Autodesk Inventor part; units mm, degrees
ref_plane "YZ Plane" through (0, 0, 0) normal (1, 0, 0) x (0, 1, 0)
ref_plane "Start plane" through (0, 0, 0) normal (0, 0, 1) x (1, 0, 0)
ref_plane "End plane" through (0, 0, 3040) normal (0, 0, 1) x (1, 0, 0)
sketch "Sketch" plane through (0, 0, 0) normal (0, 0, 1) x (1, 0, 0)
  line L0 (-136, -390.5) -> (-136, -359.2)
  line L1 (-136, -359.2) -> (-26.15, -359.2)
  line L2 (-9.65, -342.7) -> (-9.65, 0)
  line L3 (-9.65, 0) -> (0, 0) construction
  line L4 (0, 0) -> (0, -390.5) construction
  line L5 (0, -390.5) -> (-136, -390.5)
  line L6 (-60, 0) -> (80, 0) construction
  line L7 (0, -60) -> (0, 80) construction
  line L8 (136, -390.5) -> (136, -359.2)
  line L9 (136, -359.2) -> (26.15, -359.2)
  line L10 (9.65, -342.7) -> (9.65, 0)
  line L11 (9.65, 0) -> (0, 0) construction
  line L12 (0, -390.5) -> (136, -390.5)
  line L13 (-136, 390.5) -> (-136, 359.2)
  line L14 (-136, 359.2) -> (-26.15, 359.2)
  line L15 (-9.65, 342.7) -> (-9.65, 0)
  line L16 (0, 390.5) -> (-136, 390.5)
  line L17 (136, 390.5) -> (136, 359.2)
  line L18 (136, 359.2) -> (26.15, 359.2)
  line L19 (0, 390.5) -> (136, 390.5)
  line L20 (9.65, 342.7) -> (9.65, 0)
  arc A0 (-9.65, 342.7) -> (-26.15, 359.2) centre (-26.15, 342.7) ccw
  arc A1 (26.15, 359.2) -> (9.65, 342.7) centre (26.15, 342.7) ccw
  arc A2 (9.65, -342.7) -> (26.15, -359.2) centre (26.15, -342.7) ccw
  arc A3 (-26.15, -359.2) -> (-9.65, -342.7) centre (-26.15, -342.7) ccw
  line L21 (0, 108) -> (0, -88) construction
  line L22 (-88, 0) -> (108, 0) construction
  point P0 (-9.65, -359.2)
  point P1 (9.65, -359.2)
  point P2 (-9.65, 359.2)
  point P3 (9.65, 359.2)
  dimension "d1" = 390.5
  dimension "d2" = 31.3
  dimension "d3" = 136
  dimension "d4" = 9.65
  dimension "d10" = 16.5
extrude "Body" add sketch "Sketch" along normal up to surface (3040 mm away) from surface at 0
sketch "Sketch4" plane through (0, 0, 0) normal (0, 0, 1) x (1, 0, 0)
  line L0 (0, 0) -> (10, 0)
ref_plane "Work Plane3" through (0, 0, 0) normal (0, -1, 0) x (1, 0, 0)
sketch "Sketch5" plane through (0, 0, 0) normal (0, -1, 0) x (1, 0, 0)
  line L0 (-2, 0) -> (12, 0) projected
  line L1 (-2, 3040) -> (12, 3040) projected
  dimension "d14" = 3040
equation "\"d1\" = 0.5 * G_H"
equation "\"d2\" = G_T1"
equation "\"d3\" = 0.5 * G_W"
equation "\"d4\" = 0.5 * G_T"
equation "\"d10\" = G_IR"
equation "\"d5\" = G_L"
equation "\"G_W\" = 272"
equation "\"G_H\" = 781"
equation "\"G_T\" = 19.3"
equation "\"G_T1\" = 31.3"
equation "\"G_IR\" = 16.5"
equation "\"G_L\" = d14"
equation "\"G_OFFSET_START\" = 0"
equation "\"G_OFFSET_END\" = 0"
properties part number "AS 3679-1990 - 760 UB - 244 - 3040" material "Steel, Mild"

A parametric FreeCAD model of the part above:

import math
import FreeCAD as App
import Part
import Sketcher
from FreeCAD import Vector
Q = App.Units.Quantity

doc = App.newDocument("Part")
params = doc.addObject("Spreadsheet::Sheet", "Params")
for row, (alias, value) in enumerate([
    ("sketch1_radius", "16.5 mm"),
    ("sketch1_height", "31.3 mm"),
    ("pad1_length", "3040 mm"),
], start=1):
    params.set(f"A{row}", alias)
    params.set(f"B{row}", "=" + value)
    params.setAlias(f"B{row}", alias)

body = doc.addObject("PartDesign::Body", "Body")

# Sketch on XY plane
sketch1 = doc.addObject("Sketcher::SketchObject", "Sketch")
body.addObject(sketch1)
sketch1.AttachmentSupport = (doc.XY_Plane, [""])
sketch1.MapMode = "FlatFace"
sketch1.addGeometry([
    Part.LineSegment(Vector(-136, -359, 0), Vector(-136, -390, 0)),  # 0
    Part.LineSegment(Vector(-136, -390, 0), Vector(136, -390, 0)),  # 1
    Part.LineSegment(Vector(136, -390, 0), Vector(136, -359, 0)),  # 2
    Part.LineSegment(Vector(136, -359, 0), Vector(26, -359, 0)),  # 3
    Part.ArcOfCircle(Part.Circle(Vector(26, -343, 0), Vector(0, 0, 1), 16), math.radians(180), math.radians(270)),  # 4
    Part.LineSegment(Vector(10, -343, 0), Vector(10, 343, 0)),  # 5
    Part.ArcOfCircle(Part.Circle(Vector(26, 343, 0), Vector(0, 0, 1), 16), math.radians(90), math.radians(180)),  # 6
    Part.LineSegment(Vector(26, 359, 0), Vector(136, 359, 0)),  # 7
    Part.LineSegment(Vector(136, 359, 0), Vector(136, 390, 0)),  # 8
    Part.LineSegment(Vector(136, 390, 0), Vector(-136, 390, 0)),  # 9
    Part.LineSegment(Vector(-136, 390, 0), Vector(-136, 359, 0)),  # 10
    Part.LineSegment(Vector(-136, 359, 0), Vector(-26, 359, 0)),  # 11
    Part.ArcOfCircle(Part.Circle(Vector(-26, 343, 0), Vector(0, 0, 1), 16), math.radians(0), math.radians(90)),  # 12
    Part.LineSegment(Vector(-10, 343, 0), Vector(-10, -343, 0)),  # 13
    Part.ArcOfCircle(Part.Circle(Vector(-26, -343, 0), Vector(0, 0, 1), 16), math.radians(-90), math.radians(0)),  # 14
    Part.LineSegment(Vector(-26, -359, 0), Vector(-136, -359, 0)),  # 15
], False)
sketch1.addConstraint([
    Sketcher.Constraint("Coincident", 0, 2, 1, 1),
    Sketcher.Constraint("Coincident", 1, 2, 2, 1),
    Sketcher.Constraint("Coincident", 2, 2, 3, 1),
    Sketcher.Constraint("Tangent", 3, 2, 4, 2),
    Sketcher.Constraint("Tangent", 4, 1, 5, 1),
    Sketcher.Constraint("Tangent", 5, 2, 6, 2),
    Sketcher.Constraint("Tangent", 6, 1, 7, 1),
    Sketcher.Constraint("Coincident", 7, 2, 8, 1),
    Sketcher.Constraint("Coincident", 8, 2, 9, 1),
    Sketcher.Constraint("Coincident", 9, 2, 10, 1),
    Sketcher.Constraint("Coincident", 10, 2, 11, 1),
    Sketcher.Constraint("Tangent", 11, 2, 12, 2),
    Sketcher.Constraint("Tangent", 12, 1, 13, 1),
    Sketcher.Constraint("Tangent", 13, 2, 14, 2),
    Sketcher.Constraint("Tangent", 14, 1, 15, 1),
    Sketcher.Constraint("Coincident", 15, 2, 0, 1),
    Sketcher.Constraint("Vertical", 0),
    Sketcher.Constraint("Horizontal", 1),
    Sketcher.Constraint("Vertical", 2),
    Sketcher.Constraint("Horizontal", 3),
    Sketcher.Constraint("Vertical", 5),
    Sketcher.Constraint("Horizontal", 7),
    Sketcher.Constraint("Vertical", 8),
    Sketcher.Constraint("Horizontal", 9),
    Sketcher.Constraint("Vertical", 10),
    Sketcher.Constraint("Horizontal", 11),
    Sketcher.Constraint("Vertical", 13),
    Sketcher.Constraint("Horizontal", 15),
    Sketcher.Constraint("Equal", 4, 6),
    Sketcher.Constraint("Equal", 6, 12),
    Sketcher.Constraint("Equal", 12, 14),
    Sketcher.Constraint("Symmetric", 4, 3, 12, 3, -1, 1),
    Sketcher.Constraint("Symmetric", 0, 2, 8, 2, -1, 1),
    Sketcher.Constraint("Symmetric", 7, 2, 10, 2, -2),
    Sketcher.Constraint("Symmetric", 2, 2, 15, 2, -2),
    Sketcher.Constraint("Radius", 4, Q("16.5 mm")),
    Sketcher.Constraint("DistanceY", 0, 2, 0, 1, Q("31.3 mm")),
    Sketcher.Constraint("DistanceX", 0, 2, -1, 1, Q("136 mm")),
    Sketcher.Constraint("DistanceY", 0, 2, -1, 1, Q("390.5 mm")),
    Sketcher.Constraint("DistanceX", -1, 1, 4, 1, Q("9.65 mm")),
])
sketch1.setExpression("Constraints[35]", "Params.sketch1_radius")
sketch1.setExpression("Constraints[36]", "Params.sketch1_height")
pad1 = doc.addObject("PartDesign::Pad", "Pad")
body.addObject(pad1)
pad1.Profile = sketch1
pad1.setExpression("Length", "Params.pad1_length")

doc.recompute()
